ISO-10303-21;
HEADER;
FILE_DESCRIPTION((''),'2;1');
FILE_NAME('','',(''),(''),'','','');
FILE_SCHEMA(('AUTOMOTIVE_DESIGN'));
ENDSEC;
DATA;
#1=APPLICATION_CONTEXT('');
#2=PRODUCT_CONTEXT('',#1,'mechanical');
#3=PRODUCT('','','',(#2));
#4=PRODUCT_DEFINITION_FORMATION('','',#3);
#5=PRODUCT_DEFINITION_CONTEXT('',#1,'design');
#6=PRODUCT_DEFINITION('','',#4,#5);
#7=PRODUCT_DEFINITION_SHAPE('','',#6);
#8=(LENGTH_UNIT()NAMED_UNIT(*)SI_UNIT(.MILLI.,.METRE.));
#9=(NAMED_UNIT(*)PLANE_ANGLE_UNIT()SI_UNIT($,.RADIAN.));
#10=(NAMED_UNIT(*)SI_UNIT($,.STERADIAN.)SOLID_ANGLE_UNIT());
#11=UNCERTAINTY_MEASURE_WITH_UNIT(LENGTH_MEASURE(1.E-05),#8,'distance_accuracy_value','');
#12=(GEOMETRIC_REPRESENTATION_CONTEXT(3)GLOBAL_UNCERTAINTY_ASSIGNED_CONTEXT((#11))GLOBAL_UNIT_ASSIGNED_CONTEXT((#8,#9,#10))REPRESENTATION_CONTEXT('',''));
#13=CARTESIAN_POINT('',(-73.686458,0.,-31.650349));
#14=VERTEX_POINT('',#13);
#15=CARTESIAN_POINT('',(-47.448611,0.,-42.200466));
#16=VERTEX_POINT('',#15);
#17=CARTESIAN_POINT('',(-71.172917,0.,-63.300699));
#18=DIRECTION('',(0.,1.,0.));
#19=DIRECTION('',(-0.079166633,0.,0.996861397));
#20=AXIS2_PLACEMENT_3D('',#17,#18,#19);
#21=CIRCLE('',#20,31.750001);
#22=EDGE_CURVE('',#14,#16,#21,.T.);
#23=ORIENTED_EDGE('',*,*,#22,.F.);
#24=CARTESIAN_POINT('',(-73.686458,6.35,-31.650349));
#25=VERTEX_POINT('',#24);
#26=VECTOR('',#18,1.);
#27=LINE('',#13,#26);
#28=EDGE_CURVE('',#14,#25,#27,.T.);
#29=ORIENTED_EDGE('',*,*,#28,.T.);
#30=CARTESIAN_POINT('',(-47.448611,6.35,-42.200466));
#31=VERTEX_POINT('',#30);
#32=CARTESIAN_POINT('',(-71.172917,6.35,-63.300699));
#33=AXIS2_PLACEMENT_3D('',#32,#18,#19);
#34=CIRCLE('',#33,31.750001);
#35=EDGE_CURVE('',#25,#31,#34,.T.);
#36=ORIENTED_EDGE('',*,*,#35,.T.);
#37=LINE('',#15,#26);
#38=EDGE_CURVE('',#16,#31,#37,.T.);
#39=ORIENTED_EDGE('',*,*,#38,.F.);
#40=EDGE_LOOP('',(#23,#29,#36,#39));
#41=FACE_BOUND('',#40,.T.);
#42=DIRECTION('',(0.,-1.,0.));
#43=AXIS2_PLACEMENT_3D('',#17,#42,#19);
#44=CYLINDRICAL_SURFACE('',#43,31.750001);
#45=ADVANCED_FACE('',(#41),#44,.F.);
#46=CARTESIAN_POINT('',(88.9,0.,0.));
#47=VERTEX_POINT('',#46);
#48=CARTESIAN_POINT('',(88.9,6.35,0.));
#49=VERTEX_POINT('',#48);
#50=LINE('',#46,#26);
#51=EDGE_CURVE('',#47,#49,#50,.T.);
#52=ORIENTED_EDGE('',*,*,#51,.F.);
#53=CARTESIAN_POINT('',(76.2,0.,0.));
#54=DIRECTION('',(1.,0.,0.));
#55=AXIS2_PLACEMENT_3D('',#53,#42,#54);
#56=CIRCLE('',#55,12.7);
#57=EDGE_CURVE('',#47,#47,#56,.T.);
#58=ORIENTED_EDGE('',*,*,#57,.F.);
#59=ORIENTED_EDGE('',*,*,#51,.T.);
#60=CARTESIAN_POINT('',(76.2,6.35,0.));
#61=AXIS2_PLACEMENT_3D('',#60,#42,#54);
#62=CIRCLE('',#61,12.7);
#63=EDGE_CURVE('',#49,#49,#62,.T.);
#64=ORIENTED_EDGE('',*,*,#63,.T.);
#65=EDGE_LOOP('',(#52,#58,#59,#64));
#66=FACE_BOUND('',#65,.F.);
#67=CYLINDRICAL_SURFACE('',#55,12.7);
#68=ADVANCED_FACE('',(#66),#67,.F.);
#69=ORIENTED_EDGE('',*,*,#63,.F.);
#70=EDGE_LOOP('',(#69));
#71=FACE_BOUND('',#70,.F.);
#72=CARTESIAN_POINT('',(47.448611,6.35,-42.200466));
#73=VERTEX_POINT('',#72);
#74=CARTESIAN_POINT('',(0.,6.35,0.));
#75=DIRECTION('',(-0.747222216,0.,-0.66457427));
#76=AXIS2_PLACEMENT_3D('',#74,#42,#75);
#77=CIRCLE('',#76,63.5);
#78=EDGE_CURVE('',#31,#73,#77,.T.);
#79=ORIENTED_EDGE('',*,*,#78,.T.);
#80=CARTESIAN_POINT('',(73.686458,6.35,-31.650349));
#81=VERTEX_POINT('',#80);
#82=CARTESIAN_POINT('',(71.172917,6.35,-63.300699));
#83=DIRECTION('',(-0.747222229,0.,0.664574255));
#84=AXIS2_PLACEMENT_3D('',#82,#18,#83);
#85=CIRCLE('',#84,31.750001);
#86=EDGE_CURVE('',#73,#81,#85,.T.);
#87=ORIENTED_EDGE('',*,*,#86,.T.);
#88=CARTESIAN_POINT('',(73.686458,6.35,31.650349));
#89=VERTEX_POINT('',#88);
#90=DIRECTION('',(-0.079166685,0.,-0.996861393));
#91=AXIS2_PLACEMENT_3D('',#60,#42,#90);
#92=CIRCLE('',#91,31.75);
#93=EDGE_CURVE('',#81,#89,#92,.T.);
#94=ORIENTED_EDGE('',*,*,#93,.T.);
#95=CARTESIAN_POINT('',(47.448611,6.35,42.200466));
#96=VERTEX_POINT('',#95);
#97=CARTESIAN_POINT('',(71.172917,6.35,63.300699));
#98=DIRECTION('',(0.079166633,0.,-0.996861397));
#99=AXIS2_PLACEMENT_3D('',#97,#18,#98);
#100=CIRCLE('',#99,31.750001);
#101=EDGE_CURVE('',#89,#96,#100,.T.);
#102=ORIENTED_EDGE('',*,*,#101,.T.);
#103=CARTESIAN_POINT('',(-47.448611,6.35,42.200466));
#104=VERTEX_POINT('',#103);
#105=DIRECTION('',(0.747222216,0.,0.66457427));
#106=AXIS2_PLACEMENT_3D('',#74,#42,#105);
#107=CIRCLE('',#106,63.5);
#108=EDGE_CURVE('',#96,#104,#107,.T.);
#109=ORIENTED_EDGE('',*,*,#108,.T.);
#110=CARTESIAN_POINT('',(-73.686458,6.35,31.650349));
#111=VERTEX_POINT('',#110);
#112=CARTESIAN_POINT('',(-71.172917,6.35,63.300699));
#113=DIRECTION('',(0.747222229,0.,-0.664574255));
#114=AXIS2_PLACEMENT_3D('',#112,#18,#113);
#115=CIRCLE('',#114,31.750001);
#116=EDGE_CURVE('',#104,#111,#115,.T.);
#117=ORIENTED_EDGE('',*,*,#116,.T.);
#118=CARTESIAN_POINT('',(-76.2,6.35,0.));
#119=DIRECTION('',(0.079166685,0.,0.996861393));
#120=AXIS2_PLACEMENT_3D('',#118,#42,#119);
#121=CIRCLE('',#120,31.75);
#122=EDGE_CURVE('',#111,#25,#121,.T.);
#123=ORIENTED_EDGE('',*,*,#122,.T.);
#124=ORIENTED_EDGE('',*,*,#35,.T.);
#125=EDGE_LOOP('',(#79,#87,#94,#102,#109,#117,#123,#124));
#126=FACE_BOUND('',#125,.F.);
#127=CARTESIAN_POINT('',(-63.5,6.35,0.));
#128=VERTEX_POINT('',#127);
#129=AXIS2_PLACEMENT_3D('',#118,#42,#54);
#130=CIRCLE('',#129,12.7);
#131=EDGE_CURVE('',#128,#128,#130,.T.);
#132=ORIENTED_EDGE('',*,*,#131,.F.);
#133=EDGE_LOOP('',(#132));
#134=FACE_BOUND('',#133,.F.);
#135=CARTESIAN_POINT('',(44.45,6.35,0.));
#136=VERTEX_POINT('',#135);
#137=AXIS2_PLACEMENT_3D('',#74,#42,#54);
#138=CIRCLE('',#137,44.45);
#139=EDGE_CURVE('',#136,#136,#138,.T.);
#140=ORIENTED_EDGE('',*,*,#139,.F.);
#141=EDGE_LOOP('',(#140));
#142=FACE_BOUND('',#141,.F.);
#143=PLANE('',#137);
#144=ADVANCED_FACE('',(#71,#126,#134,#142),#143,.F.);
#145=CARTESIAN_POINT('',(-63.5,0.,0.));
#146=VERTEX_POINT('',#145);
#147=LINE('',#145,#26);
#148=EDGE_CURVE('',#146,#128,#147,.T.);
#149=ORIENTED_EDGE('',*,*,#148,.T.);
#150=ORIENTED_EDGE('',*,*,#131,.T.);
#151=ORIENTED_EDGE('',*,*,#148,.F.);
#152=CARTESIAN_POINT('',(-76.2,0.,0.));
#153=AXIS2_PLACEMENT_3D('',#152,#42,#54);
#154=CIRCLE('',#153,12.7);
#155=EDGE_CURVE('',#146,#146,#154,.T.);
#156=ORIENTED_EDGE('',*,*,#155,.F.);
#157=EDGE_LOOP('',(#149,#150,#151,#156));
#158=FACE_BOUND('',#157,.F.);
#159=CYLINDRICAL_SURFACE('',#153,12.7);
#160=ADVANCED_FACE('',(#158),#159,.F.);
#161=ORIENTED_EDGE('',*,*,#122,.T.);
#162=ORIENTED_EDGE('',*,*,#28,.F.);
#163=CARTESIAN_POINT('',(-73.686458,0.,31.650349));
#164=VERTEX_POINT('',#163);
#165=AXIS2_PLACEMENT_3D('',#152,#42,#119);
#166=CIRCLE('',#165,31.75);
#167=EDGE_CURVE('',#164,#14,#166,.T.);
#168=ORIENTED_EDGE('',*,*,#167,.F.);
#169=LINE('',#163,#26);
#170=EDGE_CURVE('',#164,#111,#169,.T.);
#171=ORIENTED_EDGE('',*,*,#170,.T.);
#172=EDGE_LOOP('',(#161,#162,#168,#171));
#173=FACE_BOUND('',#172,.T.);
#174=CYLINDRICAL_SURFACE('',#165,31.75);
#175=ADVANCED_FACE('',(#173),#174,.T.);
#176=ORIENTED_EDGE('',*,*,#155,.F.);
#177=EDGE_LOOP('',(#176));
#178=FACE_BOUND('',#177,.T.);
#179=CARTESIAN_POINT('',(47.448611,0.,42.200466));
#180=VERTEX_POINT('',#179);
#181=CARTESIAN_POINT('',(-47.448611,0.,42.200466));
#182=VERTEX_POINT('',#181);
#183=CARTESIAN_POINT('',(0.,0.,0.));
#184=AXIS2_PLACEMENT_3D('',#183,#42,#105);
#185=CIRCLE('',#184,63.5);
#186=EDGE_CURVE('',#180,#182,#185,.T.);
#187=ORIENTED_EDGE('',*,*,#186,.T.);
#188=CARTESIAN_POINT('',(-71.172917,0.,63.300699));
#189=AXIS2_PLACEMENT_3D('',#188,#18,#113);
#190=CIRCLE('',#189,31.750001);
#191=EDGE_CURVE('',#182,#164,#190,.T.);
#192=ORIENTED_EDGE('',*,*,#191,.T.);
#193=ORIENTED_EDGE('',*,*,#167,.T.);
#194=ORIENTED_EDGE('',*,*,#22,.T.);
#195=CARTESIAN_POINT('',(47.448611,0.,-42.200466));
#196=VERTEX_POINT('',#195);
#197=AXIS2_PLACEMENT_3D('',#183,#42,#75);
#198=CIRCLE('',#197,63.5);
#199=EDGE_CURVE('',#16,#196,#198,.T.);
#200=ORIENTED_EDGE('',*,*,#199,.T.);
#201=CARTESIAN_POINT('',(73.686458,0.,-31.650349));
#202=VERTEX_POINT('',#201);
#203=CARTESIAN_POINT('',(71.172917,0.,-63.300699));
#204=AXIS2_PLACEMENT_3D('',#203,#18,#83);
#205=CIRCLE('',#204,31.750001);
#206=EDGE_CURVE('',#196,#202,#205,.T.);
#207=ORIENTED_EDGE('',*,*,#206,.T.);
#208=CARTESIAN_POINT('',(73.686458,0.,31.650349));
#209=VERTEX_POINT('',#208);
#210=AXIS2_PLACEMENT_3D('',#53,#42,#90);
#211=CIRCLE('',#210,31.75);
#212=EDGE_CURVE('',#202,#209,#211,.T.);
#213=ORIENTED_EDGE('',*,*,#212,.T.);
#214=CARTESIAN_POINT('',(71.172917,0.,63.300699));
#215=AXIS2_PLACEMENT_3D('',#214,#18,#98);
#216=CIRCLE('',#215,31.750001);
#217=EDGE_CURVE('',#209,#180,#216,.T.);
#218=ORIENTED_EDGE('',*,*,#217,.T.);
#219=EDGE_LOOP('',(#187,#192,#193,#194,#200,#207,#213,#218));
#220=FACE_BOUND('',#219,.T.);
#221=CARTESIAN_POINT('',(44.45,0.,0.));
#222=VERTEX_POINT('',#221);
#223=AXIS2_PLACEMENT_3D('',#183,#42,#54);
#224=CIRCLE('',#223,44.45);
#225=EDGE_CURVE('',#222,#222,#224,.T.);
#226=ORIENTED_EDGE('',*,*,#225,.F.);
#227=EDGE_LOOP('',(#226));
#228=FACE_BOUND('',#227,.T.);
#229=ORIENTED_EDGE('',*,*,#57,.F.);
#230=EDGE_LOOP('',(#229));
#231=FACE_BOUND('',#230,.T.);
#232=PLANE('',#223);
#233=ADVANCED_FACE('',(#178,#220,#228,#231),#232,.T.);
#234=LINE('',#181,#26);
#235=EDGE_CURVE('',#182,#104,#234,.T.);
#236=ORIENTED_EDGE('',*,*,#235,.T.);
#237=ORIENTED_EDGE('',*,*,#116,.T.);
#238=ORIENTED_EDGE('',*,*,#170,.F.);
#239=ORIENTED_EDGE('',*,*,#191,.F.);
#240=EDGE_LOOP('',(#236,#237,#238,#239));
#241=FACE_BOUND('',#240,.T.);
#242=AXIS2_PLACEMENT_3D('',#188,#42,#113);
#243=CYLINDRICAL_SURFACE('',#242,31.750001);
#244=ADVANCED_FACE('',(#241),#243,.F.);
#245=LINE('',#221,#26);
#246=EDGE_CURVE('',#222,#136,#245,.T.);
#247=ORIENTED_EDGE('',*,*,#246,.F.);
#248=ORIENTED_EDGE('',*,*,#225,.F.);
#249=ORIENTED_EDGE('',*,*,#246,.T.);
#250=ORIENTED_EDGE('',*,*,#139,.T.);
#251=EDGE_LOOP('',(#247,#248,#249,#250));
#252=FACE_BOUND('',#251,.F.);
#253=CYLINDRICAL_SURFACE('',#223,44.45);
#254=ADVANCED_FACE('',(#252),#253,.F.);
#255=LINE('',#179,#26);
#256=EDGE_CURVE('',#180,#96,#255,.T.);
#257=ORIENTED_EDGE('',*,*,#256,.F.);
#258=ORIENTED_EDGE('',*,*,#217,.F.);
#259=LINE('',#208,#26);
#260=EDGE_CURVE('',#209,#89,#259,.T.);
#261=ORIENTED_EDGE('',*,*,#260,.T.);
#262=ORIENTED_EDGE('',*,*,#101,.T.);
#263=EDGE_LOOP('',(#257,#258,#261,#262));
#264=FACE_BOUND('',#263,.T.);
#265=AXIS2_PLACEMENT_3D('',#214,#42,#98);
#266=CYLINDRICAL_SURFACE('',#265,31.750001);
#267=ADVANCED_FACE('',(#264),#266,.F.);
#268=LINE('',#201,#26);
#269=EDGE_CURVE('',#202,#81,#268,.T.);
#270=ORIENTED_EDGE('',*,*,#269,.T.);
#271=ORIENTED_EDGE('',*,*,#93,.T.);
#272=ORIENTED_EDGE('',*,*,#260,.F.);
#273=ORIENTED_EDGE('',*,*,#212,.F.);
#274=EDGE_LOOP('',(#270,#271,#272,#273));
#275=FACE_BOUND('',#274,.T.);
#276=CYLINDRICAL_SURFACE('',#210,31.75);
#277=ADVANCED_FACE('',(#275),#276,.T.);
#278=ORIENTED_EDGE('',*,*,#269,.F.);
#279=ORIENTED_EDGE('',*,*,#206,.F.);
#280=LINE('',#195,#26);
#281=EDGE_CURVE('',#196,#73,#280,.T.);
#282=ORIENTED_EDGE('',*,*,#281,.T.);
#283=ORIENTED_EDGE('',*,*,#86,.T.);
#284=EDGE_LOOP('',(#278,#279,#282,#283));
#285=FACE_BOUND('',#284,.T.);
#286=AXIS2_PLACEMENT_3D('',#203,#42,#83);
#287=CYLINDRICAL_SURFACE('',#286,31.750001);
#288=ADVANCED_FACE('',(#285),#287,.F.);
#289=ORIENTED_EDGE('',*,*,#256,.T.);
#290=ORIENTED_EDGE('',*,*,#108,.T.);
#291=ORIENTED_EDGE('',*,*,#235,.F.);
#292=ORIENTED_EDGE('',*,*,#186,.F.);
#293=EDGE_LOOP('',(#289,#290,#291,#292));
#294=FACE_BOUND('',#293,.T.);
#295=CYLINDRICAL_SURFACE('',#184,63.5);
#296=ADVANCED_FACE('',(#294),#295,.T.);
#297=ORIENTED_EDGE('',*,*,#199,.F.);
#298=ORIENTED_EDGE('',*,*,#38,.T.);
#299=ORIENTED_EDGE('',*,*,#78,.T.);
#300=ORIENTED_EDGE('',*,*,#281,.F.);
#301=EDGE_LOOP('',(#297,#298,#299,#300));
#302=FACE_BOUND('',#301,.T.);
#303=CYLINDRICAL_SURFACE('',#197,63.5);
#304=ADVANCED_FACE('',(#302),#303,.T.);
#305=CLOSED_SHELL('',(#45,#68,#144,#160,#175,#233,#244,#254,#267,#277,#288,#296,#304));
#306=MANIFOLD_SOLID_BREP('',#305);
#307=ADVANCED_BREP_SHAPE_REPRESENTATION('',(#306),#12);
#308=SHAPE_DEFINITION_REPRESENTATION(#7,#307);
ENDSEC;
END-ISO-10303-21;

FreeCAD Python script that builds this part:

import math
import FreeCAD as App
import Part
import Sketcher

V = App.Vector
Q = App.Units.Quantity

doc = App.newDocument("Part")
body = doc.addObject("PartDesign::Body", "Body")

# Sketch on XZ plane
sketch1 = body.newObject("Sketcher::SketchObject", "Sketch")
sketch1.AttachmentSupport = (doc.getObject("XZ_Plane"), [""])
sketch1.MapMode = "FlatFace"
sketch1.addGeometry([
    Part.ArcOfCircle(Part.Circle(V(-71, -63, 0), V(0, 0, 1), 32), math.radians(42), math.radians(95)),  # 0
    Part.ArcOfCircle(Part.Circle(V(0, 0, 0), V(0, 0, 1), 64), math.radians(-138), math.radians(-42)),  # 1
    Part.ArcOfCircle(Part.Circle(V(71, -63, 0), V(0, 0, 1), 32), math.radians(85), math.radians(138)),  # 2
    Part.ArcOfCircle(Part.Circle(V(76, 0, 0), V(0, 0, 1), 32), math.radians(-95), math.radians(95)),  # 3
    Part.ArcOfCircle(Part.Circle(V(71, 63, 0), V(0, 0, 1), 32), math.radians(-138), math.radians(-85)),  # 4
    Part.ArcOfCircle(Part.Circle(V(0, 0, 0), V(0, 0, 1), 64), math.radians(42), math.radians(138)),  # 5
    Part.ArcOfCircle(Part.Circle(V(-71, 63, 0), V(0, 0, 1), 32), math.radians(-95), math.radians(-42)),  # 6
    Part.ArcOfCircle(Part.Circle(V(-76, 0, 0), V(0, 0, 1), 32), math.radians(85), math.radians(275)),  # 7
    Part.Circle(V(-76, 0, 0), V(0, 0, 1), 13),  # 8
    Part.Circle(V(0, 0, 0), V(0, 0, 1), 44),  # 9
    Part.Circle(V(76, 0, 0), V(0, 0, 1), 13),  # 10
], False)
sketch1.addConstraint([
    Sketcher.Constraint("Tangent", 0, 1, 1, 1),
    Sketcher.Constraint("Tangent", 1, 2, 2, 2),
    Sketcher.Constraint("Tangent", 2, 1, 3, 1),
    Sketcher.Constraint("Tangent", 3, 2, 4, 2),
    Sketcher.Constraint("Tangent", 4, 1, 5, 1),
    Sketcher.Constraint("Tangent", 5, 2, 6, 2),
    Sketcher.Constraint("Tangent", 6, 1, 7, 1),
    Sketcher.Constraint("Tangent", 7, 2, 0, 2),
    Sketcher.Constraint("Coincident", 1, 3, -1, 1),
    Sketcher.Constraint("Coincident", 5, 3, -1, 1),
    Sketcher.Constraint("Coincident", 9, 3, -1, 1),
    Sketcher.Constraint("Coincident", 8, 3, 7, 3),
    Sketcher.Constraint("Coincident", 10, 3, 3, 3),
    Sketcher.Constraint("Equal", 0, 2),
    Sketcher.Constraint("Equal", 2, 3),
    Sketcher.Constraint("Equal", 3, 4),
    Sketcher.Constraint("Equal", 1, 5),
    Sketcher.Constraint("Equal", 4, 6),
    Sketcher.Constraint("Equal", 6, 7),
    Sketcher.Constraint("Equal", 8, 10),
    Sketcher.Constraint("Symmetric", 3, 3, 7, 3, -1, 1),
    Sketcher.Constraint("PointOnObject", 3, 3, -1),
    Sketcher.Constraint("Diameter", 8, Q("1 in")),
    Sketcher.Constraint("Diameter", 9, Q("3.5 in")),
    Sketcher.Constraint("Radius", 1, Q("2.5 in")),
    Sketcher.Constraint("Radius", 0, Q("1.25 in")),
    Sketcher.Constraint("DistanceX", -1, 1, 3, 3, Q("3 in")),
])
pad1 = body.newObject("PartDesign::Pad", "Pad")
pad1.Profile = sketch1
pad1.Length = Q("0.25 in")
pad1.Reversed = True

doc.recompute()
